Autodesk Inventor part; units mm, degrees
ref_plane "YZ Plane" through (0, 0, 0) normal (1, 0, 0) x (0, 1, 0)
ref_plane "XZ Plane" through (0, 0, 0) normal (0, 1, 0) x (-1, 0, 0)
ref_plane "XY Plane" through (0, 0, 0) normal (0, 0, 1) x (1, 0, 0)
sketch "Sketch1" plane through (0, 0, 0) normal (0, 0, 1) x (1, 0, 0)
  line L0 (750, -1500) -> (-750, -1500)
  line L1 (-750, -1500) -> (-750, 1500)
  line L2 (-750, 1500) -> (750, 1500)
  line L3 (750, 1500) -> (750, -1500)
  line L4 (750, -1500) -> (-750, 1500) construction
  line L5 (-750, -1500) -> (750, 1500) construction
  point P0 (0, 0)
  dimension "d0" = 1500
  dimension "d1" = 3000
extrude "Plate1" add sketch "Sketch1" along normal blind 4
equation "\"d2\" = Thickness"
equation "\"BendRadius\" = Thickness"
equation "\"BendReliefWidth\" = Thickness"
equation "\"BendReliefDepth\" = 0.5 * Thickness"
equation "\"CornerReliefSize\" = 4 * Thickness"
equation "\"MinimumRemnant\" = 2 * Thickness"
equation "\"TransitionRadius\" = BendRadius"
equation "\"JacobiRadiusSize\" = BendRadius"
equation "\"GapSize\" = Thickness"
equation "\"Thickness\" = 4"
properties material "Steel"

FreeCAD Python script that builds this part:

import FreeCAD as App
import Part
import Sketcher

V = App.Vector
Q = App.Units.Quantity

doc = App.newDocument("Part")
params = doc.addObject("Spreadsheet::Sheet", "Params")
for row, (alias, value) in enumerate([
    ("sketch1_width", "1500 mm"),
    ("sketch1_height", "3000 mm"),
    ("pad1_length", "4 mm"),
], start=1):
    params.set(f"A{row}", alias)
    params.set(f"B{row}", "=" + value)
    params.setAlias(f"B{row}", alias)

body = doc.addObject("PartDesign::Body", "Body")

# Sketch on XY plane
sketch1 = body.newObject("Sketcher::SketchObject", "Sketch")
sketch1.AttachmentSupport = (doc.getObject("XY_Plane"), [""])
sketch1.MapMode = "FlatFace"
sketch1.addGeometry([
    Part.LineSegment(V(-750, -1500, 0), V(750, -1500, 0)),
    Part.LineSegment(V(750, -1500, 0), V(750, 1500, 0)),
    Part.LineSegment(V(750, 1500, 0), V(-750, 1500, 0)),
    Part.LineSegment(V(-750, 1500, 0), V(-750, -1500, 0)),
], False)
sketch1.addConstraint([
    Sketcher.Constraint("Coincident", 0, 2, 1, 1),
    Sketcher.Constraint("Coincident", 1, 2, 2, 1),
    Sketcher.Constraint("Coincident", 2, 2, 3, 1),
    Sketcher.Constraint("Coincident", 3, 2, 0, 1),
    Sketcher.Constraint("Horizontal", 0),
    Sketcher.Constraint("Vertical", 1),
    Sketcher.Constraint("Horizontal", 2),
    Sketcher.Constraint("Vertical", 3),
    Sketcher.Constraint("Symmetric", 0, 2, 2, 2, -1, 1),
    Sketcher.Constraint("DistanceX", 0, 1, 0, 2, Q("1500 mm")),
    Sketcher.Constraint("DistanceY", 1, 1, 1, 2, Q("3000 mm")),
])
sketch1.setExpression("Constraints[9]", "Params.sketch1_width")
sketch1.setExpression("Constraints[10]", "Params.sketch1_height")
pad1 = body.newObject("PartDesign::Pad", "Pad")
pad1.Profile = sketch1
pad1.setExpression("Length", "Params.pad1_length")

doc.recompute()
